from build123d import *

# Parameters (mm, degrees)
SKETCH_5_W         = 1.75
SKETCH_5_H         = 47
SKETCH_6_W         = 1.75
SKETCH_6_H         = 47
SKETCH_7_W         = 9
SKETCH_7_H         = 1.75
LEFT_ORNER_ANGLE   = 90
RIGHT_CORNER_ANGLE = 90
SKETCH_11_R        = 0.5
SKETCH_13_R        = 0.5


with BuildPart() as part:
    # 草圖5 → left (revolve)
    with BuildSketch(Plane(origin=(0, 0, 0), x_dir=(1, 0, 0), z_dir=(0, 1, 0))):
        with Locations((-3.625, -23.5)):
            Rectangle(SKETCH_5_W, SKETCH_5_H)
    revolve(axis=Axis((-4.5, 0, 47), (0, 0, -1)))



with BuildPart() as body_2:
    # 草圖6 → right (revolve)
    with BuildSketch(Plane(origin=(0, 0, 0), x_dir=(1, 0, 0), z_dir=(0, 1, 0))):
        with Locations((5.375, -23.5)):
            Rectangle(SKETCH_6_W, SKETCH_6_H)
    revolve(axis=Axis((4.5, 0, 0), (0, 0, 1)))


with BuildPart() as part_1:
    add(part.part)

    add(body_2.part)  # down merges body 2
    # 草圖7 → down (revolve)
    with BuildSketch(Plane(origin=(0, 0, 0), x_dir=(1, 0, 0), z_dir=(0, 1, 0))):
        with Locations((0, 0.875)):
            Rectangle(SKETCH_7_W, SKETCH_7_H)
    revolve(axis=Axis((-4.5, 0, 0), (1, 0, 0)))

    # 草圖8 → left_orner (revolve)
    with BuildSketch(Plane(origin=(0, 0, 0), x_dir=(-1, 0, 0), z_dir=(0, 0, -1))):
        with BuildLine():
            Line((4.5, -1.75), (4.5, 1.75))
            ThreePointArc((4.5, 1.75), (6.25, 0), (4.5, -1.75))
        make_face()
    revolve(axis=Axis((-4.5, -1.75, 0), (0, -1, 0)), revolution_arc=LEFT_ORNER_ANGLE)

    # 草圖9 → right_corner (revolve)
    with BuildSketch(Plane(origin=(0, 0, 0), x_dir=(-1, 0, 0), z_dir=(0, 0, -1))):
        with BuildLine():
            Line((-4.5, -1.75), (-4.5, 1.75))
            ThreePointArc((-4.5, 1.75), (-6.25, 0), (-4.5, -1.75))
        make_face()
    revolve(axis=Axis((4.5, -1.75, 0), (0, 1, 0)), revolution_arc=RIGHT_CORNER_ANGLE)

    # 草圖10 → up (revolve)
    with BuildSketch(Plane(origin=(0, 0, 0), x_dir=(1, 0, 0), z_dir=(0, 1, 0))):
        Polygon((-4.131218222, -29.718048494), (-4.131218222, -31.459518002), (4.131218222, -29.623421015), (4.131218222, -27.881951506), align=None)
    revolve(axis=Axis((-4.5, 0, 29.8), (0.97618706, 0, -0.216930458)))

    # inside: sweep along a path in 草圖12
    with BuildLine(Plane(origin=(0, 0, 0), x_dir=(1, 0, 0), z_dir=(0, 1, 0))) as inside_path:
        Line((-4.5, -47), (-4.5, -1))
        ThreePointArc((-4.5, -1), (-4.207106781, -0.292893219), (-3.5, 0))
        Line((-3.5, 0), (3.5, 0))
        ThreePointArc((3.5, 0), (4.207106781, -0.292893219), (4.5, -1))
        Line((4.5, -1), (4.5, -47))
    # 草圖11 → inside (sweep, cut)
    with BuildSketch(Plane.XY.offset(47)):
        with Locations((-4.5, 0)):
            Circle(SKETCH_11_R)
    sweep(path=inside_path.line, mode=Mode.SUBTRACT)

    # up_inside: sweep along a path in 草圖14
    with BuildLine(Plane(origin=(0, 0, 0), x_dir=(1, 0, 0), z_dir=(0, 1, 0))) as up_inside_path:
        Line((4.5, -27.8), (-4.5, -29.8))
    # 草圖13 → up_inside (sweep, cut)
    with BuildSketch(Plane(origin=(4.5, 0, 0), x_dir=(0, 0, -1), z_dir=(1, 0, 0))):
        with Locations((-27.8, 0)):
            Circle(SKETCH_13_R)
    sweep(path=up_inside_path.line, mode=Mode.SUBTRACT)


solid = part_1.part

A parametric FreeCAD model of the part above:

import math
import FreeCAD as App
import Part
import Sketcher
from FreeCAD import Vector

doc = App.newDocument("Part")
body = doc.addObject("PartDesign::Body", "Body")

sketch1 = body.newObject("Sketcher::SketchObject", "Sketch")
sketch1.AttachmentSupport = (doc.getObject("XZ_Plane"), [""])
sketch1.MapMode = "FlatFace"
sketch1.addGeometry(Part.LineSegment(Vector(-4.5, 0, 0), Vector(-4.5, 47, 0)), False)
sketch1.addGeometry(Part.LineSegment(Vector(-4.5, 47, 0), Vector(-2.8, 47, 0)), False)
sketch1.addGeometry(Part.LineSegment(Vector(-2.8, 47, 0), Vector(-2.8, 0, 0)), False)
sketch1.addGeometry(Part.LineSegment(Vector(-2.8, 0, 0), Vector(-4.5, 0, 0)), False)
sketch1.addGeometry(Part.LineSegment(Vector(-4.5, 47, 0), Vector(-4.5, 0, 0)), True)
sketch1.addConstraint(Sketcher.Constraint("Coincident", 0, 2, 1, 1))
sketch1.addConstraint(Sketcher.Constraint("Coincident", 1, 2, 2, 1))
sketch1.addConstraint(Sketcher.Constraint("Coincident", 2, 2, 3, 1))
sketch1.addConstraint(Sketcher.Constraint("Coincident", 3, 2, 0, 1))
sketch1.addConstraint(Sketcher.Constraint("Vertical", 0))
sketch1.addConstraint(Sketcher.Constraint("Horizontal", 1))
sketch1.addConstraint(Sketcher.Constraint("Vertical", 2))
sketch1.addConstraint(Sketcher.Constraint("Horizontal", 3))
sketch1.addConstraint(Sketcher.Constraint("Vertical", 4))
sketch1.addConstraint(Sketcher.Constraint("Coincident", 4, 1, 0, 2))
sketch1.addConstraint(Sketcher.Constraint("PointOnObject", 2, 2, -1))
sketch1.addConstraint(Sketcher.Constraint("PointOnObject", 4, 2, -1))
sketch1.addConstraint(Sketcher.Constraint("DistanceY", 0, 1, 0, 2, 47.0))
sketch1.addConstraint(Sketcher.Constraint("DistanceX", 1, 1, 1, 2, 1.75))
sketch1.addConstraint(Sketcher.Constraint("DistanceX", 0, 2, -1, 1, 4.5))
revolution = body.newObject("PartDesign::Revolution", "Revolution")
revolution.Profile = sketch1
revolution.ReferenceAxis = (sketch1, ["Axis0"])
revolution.Angle = 360
body2 = doc.addObject("PartDesign::Body", "Body001")

sketch2 = body2.newObject("Sketcher::SketchObject", "Sketch001")
sketch2.AttachmentSupport = (doc.getObject("XZ_Plane001"), [""])
sketch2.MapMode = "FlatFace"
sketch2.addGeometry(Part.LineSegment(Vector(4.5, 0, 0), Vector(4.5, 47, 0)), False)
sketch2.addGeometry(Part.LineSegment(Vector(4.5, 47, 0), Vector(6.2, 47, 0)), False)
sketch2.addGeometry(Part.LineSegment(Vector(6.2, 47, 0), Vector(6.2, 0, 0)), False)
sketch2.addGeometry(Part.LineSegment(Vector(6.2, 0, 0), Vector(4.5, 0, 0)), False)
sketch2.addGeometry(Part.LineSegment(Vector(4.5, 0, 0), Vector(4.5, 47, 0)), True)
sketch2.addConstraint(Sketcher.Constraint("Coincident", 0, 2, 1, 1))
sketch2.addConstraint(Sketcher.Constraint("Coincident", 1, 2, 2, 1))
sketch2.addConstraint(Sketcher.Constraint("Coincident", 2, 2, 3, 1))
sketch2.addConstraint(Sketcher.Constraint("Coincident", 3, 2, 0, 1))
sketch2.addConstraint(Sketcher.Constraint("Vertical", 0))
sketch2.addConstraint(Sketcher.Constraint("Horizontal", 1))
sketch2.addConstraint(Sketcher.Constraint("Vertical", 2))
sketch2.addConstraint(Sketcher.Constraint("Horizontal", 3))
sketch2.addConstraint(Sketcher.Constraint("Vertical", 4))
sketch2.addConstraint(Sketcher.Constraint("Coincident", 4, 1, 3, 2))
sketch2.addConstraint(Sketcher.Constraint("PointOnObject", 2, 2, -1))
sketch2.addConstraint(Sketcher.Constraint("Horizontal", 1, 2, 4, 2))
sketch2.addConstraint(Sketcher.Constraint("DistanceY", 0, 1, 0, 2, 47.0))
sketch2.addConstraint(Sketcher.Constraint("DistanceX", 1, 1, 1, 2, 1.75))
sketch2.addConstraint(Sketcher.Constraint("DistanceX", -1, 1, 0, 2, 4.5))
revolution2 = body2.newObject("PartDesign::Revolution", "Revolution001")
revolution2.Profile = sketch2
revolution2.ReferenceAxis = (sketch2, ["Axis0"])
revolution2.Angle = 360
body.AllowCompound = True
doc.recompute()

boolean = body.newObject("PartDesign::Boolean", "Boolean")
boolean.Type = "Fuse"
boolean.addObjects([body2])

sketch3 = body.newObject("Sketcher::SketchObject", "Sketch002")
sketch3.AttachmentSupport = (doc.getObject("XZ_Plane"), [""])
sketch3.MapMode = "FlatFace"
sketch3.addGeometry(Part.LineSegment(Vector(-4.5, -1.8, 0), Vector(-4.5, 0, 0)), False)
sketch3.addGeometry(Part.LineSegment(Vector(-4.5, 0, 0), Vector(4.5, 0, 0)), False)
sketch3.addGeometry(Part.LineSegment(Vector(4.5, 0, 0), Vector(4.5, -1.8, 0)), False)
sketch3.addGeometry(Part.LineSegment(Vector(4.5, -1.8, 0), Vector(-4.5, -1.8, 0)), False)
sketch3.addConstraint(Sketcher.Constraint("Coincident", 0, 2, 1, 1))
sketch3.addConstraint(Sketcher.Constraint("Coincident", 1, 2, 2, 1))
sketch3.addConstraint(Sketcher.Constraint("Coincident", 2, 2, 3, 1))
sketch3.addConstraint(Sketcher.Constraint("Coincident", 3, 2, 0, 1))
sketch3.addConstraint(Sketcher.Constraint("Vertical", 0))
sketch3.addConstraint(Sketcher.Constraint("Horizontal", 1))
sketch3.addConstraint(Sketcher.Constraint("Vertical", 2))
sketch3.addConstraint(Sketcher.Constraint("Horizontal", 3))
sketch3.addConstraint(Sketcher.Constraint("Symmetric", 0, 2, 1, 2, -1, 1))
sketch3.addConstraint(Sketcher.Constraint("DistanceX", 1, 1, 1, 2, 9.0))
sketch3.addConstraint(Sketcher.Constraint("DistanceY", 0, 1, 0, 2, 1.75))
revolution3 = body.newObject("PartDesign::Revolution", "Revolution002")
revolution3.Profile = sketch3
revolution3.ReferenceAxis = (sketch3, ["H_Axis"])
revolution3.Angle = 360

sketch4 = body.newObject("Sketcher::SketchObject", "Sketch003")
sketch4.AttachmentSupport = (doc.getObject("XY_Plane"), [""])
sketch4.MapMode = "FlatFace"
sketch4.addGeometry(Part.LineSegment(Vector(-4.5, 1.8, 0), Vector(-4.5, -1.8, 0)), False)
sketch4.addGeometry(Part.ArcOfCircle(Part.Circle(Vector(-4.5, 0, 0), Vector(0, 0, 1), 1.8), math.radians(90), math.radians(270)), False)
sketch4.addGeometry(Part.LineSegment(Vector(-4.5, 1.8, 0), Vector(-4.5, -1.8, 0)), True)
sketch4.addConstraint(Sketcher.Constraint("Coincident", 0, 1, 1, 1))
sketch4.addConstraint(Sketcher.Constraint("Coincident", 1, 2, 0, 2))
sketch4.addConstraint(Sketcher.Constraint("Vertical", 0))
sketch4.addConstraint(Sketcher.Constraint("Vertical", 2))
sketch4.addConstraint(Sketcher.Constraint("Coincident", 2, 1, 0, 1))
sketch4.addConstraint(Sketcher.Constraint("PointOnObject", 1, 3, -1))
sketch4.addConstraint(Sketcher.Constraint("Vertical", 1, 3, 0, 1))
sketch4.addConstraint(Sketcher.Constraint("Equal", 0, 2))
sketch4.addConstraint(Sketcher.Constraint("Radius", 1, 1.75))
sketch4.addConstraint(Sketcher.Constraint("DistanceX", 1, 3, -1, 1, 4.5))
revolution4 = body.newObject("PartDesign::Revolution", "Revolution003")
revolution4.Profile = sketch4
revolution4.ReferenceAxis = (sketch4, ["Axis0"])
revolution4.Angle = 90

sketch5 = body.newObject("Sketcher::SketchObject", "Sketch004")
sketch5.AttachmentSupport = (doc.getObject("XY_Plane"), [""])
sketch5.MapMode = "FlatFace"
sketch5.addGeometry(Part.LineSegment(Vector(4.5, -1.8, 0), Vector(4.5, 1.8, 0)), False)
sketch5.addGeometry(Part.ArcOfCircle(Part.Circle(Vector(4.5, 0, 0), Vector(0, 0, 1), 1.8), math.radians(-90), math.radians(90)), False)
sketch5.addGeometry(Part.LineSegment(Vector(4.5, -1.8, 0), Vector(4.5, 1.8, 0)), True)
sketch5.addConstraint(Sketcher.Constraint("Coincident", 0, 1, 1, 1))
sketch5.addConstraint(Sketcher.Constraint("Coincident", 1, 2, 0, 2))
sketch5.addConstraint(Sketcher.Constraint("Vertical", 0))
sketch5.addConstraint(Sketcher.Constraint("Vertical", 2))
sketch5.addConstraint(Sketcher.Constraint("Coincident", 2, 1, 0, 1))
sketch5.addConstraint(Sketcher.Constraint("PointOnObject", 1, 3, -1))
sketch5.addConstraint(Sketcher.Constraint("Vertical", 1, 3, 0, 1))
sketch5.addConstraint(Sketcher.Constraint("Equal", 0, 2))
sketch5.addConstraint(Sketcher.Constraint("Radius", 1, 1.75))
sketch5.addConstraint(Sketcher.Constraint("DistanceX", -1, 1, 1, 3, 4.5))
revolution5 = body.newObject("PartDesign::Revolution", "Revolution004")
revolution5.Profile = sketch5
revolution5.ReferenceAxis = (sketch5, ["Axis0"])
revolution5.Angle = 90

sketch6 = body.newObject("Sketcher::SketchObject", "Sketch005")
sketch6.AttachmentSupport = (doc.getObject("XZ_Plane"), [""])
sketch6.MapMode = "FlatFace"
sketch6.addGeometry(Part.LineSegment(Vector(-4.1, 29.7, 0), Vector(-4.1, 31.5, 0)), False)
sketch6.addGeometry(Part.LineSegment(Vector(-4.1, 31.5, 0), Vector(4.1, 29.6, 0)), False)
sketch6.addGeometry(Part.LineSegment(Vector(4.1, 29.6, 0), Vector(4.1, 27.9, 0)), False)
sketch6.addGeometry(Part.LineSegment(Vector(4.1, 27.9, 0), Vector(-4.1, 29.7, 0)), False)
sketch6.addGeometry(Part.LineSegment(Vector(-4.5, 29.8, 0), Vector(4.1, 27.9, 0)), True)
sketch6.addConstraint(Sketcher.Constraint("Coincident", 0, 2, 1, 1))
sketch6.addConstraint(Sketcher.Constraint("Coincident", 1, 2, 2, 1))
sketch6.addConstraint(Sketcher.Constraint("Coincident", 2, 2, 3, 1))
sketch6.addConstraint(Sketcher.Constraint("Coincident", 3, 2, 0, 1))
sketch6.addConstraint(Sketcher.Constraint("Vertical", 0))
sketch6.addConstraint(Sketcher.Constraint("Vertical", 2))
sketch6.addConstraint(Sketcher.Constraint("Coincident", 4, 2, 2, 2))
sketch6.addConstraint(Sketcher.Constraint("Parallel", 1, 3))
sketch6.addConstraint(Sketcher.Constraint("Parallel", 3, 4))
sketch6.addConstraint(Sketcher.Constraint("DistanceX", 4, 1, -1, 1, 4.5))
sketch6.addConstraint(Sketcher.Constraint("DistanceY", -1, 1, 4, 1, 29.8))
sketch6.addConstraint(Sketcher.Constraint("DistanceY", 0, 1, 0, 2, 1.74147))
sketch6.addConstraint(Sketcher.Constraint("Distance", 1, 8.463989))
sketch6.addConstraint(Sketcher.Constraint("DistanceX", 0, 2, -1, 1, 4.131218))
sketch6.addConstraint(Sketcher.Constraint("DistanceY", -1, 1, 0, 2, 31.459518))
revolution6 = body.newObject("PartDesign::Revolution", "Revolution005")
revolution6.Profile = sketch6
revolution6.ReferenceAxis = (sketch6, ["Axis0"])
revolution6.Angle = 360

sketch7 = body.newObject("Sketcher::SketchObject", "Sketch006")
sketch7.AttachmentSupport = (doc.getObject("XY_Plane"), [""])
sketch7.MapMode = "FlatFace"
sketch7.AttachmentOffset = App.Placement(Vector(0, 0, 47), App.Rotation())
sketch7.addGeometry(Part.Circle(Vector(-4.5, 0, 0), Vector(0, 0, 1), 0.5), False)
sketch7.addConstraint(Sketcher.Constraint("PointOnObject", 0, 3, -1))
sketch7.addConstraint(Sketcher.Constraint("Diameter", 0, 1.0))
sketch7.addConstraint(Sketcher.Constraint("DistanceX", 0, 3, -1, 1, 4.5))

sketch8 = body.newObject("Sketcher::SketchObject", "Sketch007")
sketch8.AttachmentSupport = (doc.getObject("XZ_Plane"), [""])
sketch8.MapMode = "FlatFace"
sketch8.addGeometry(Part.LineSegment(Vector(-4.5, 47, 0), Vector(-4.5, 1, 0)), False)
sketch8.addGeometry(Part.ArcOfCircle(Part.Circle(Vector(-3.5, 1, 0), Vector(0, 0, 1), 1), math.radians(-180), math.radians(-90)), False)
sketch8.addGeometry(Part.LineSegment(Vector(-3.5, 0, 0), Vector(3.5, 0, 0)), False)
sketch8.addGeometry(Part.ArcOfCircle(Part.Circle(Vector(3.5, 1, 0), Vector(0, 0, 1), 1), math.radians(-90), math.radians(0)), False)
sketch8.addGeometry(Part.LineSegment(Vector(4.5, 1, 0), Vector(4.5, 47, 0)), False)
sketch8.addConstraint(Sketcher.Constraint("Tangent", 0, 2, 1, 1))
sketch8.addConstraint(Sketcher.Constraint("Tangent", 1, 2, 2, 1))
sketch8.addConstraint(Sketcher.Constraint("Tangent", 2, 2, 3, 1))
sketch8.addConstraint(Sketcher.Constraint("Tangent", 3, 2, 4, 1))
sketch8.addConstraint(Sketcher.Constraint("Vertical", 0))
sketch8.addConstraint(Sketcher.Constraint("Horizontal", 2))
sketch8.addConstraint(Sketcher.Constraint("Vertical", 4))
sketch8.addConstraint(Sketcher.Constraint("Equal", 1, 3))
sketch8.addConstraint(Sketcher.Constraint("Symmetric", 1, 2, 2, 2, -1, 1))
sketch8.addConstraint(Sketcher.Constraint("Horizontal", 0, 1, 4, 2))
sketch8.addConstraint(Sketcher.Constraint("Radius", 1, 1.0))
sketch8.addConstraint(Sketcher.Constraint("DistanceX", 2, 1, 2, 2, 7.0))
sketch8.addConstraint(Sketcher.Constraint("DistanceY", 0, 2, 0, 1, 46.0))
doc.recompute()

subtractivepipe = body.newObject("PartDesign::SubtractivePipe", "SubtractivePipe")
subtractivepipe.Profile = sketch7
subtractivepipe.Spine = (sketch8, ["Edge1", "Edge2", "Edge3", "Edge4", "Edge5"])

sketch9 = body.newObject("Sketcher::SketchObject", "Sketch008")
sketch9.AttachmentSupport = (doc.getObject("YZ_Plane"), [""])
sketch9.MapMode = "FlatFace"
sketch9.AttachmentOffset = App.Placement(Vector(0, 0, 4.5), App.Rotation())
sketch9.addGeometry(Part.Circle(Vector(0, 27.8, 0), Vector(0, 0, 1), 0.5), False)
sketch9.addConstraint(Sketcher.Constraint("PointOnObject", 0, 3, -2))
sketch9.addConstraint(Sketcher.Constraint("Diameter", 0, 1.0))
sketch9.addConstraint(Sketcher.Constraint("DistanceY", -1, 1, 0, 3, 27.8))

sketch10 = body.newObject("Sketcher::SketchObject", "Sketch009")
sketch10.Placement = App.Placement(Vector(6.098824, 0, 27.444706), App.Rotation(Vector(-0.97618706, 0, 0.216930458), Vector(0, 1, 0), Vector(-0.216930458, 0, -0.97618706), "ZXY"))
sketch10.addGeometry(Part.LineSegment(Vector(2, 0, 0), Vector(11, 0, 0)), False)
sketch10.addConstraint(Sketcher.Constraint("Horizontal", 0))
sketch10.addConstraint(Sketcher.Constraint("PointOnObject", 0, 1, -1))
sketch10.addConstraint(Sketcher.Constraint("DistanceX", 0, 1, 0, 2, 9.219544))
sketch10.addConstraint(Sketcher.Constraint("DistanceX", -1, 1, 0, 2, 10.857369))
doc.recompute()

subtractivepipe2 = body.newObject("PartDesign::SubtractivePipe", "SubtractivePipe001")
subtractivepipe2.Profile = sketch9
subtractivepipe2.Spine = (sketch10, ["Edge1"])

doc.recompute()
